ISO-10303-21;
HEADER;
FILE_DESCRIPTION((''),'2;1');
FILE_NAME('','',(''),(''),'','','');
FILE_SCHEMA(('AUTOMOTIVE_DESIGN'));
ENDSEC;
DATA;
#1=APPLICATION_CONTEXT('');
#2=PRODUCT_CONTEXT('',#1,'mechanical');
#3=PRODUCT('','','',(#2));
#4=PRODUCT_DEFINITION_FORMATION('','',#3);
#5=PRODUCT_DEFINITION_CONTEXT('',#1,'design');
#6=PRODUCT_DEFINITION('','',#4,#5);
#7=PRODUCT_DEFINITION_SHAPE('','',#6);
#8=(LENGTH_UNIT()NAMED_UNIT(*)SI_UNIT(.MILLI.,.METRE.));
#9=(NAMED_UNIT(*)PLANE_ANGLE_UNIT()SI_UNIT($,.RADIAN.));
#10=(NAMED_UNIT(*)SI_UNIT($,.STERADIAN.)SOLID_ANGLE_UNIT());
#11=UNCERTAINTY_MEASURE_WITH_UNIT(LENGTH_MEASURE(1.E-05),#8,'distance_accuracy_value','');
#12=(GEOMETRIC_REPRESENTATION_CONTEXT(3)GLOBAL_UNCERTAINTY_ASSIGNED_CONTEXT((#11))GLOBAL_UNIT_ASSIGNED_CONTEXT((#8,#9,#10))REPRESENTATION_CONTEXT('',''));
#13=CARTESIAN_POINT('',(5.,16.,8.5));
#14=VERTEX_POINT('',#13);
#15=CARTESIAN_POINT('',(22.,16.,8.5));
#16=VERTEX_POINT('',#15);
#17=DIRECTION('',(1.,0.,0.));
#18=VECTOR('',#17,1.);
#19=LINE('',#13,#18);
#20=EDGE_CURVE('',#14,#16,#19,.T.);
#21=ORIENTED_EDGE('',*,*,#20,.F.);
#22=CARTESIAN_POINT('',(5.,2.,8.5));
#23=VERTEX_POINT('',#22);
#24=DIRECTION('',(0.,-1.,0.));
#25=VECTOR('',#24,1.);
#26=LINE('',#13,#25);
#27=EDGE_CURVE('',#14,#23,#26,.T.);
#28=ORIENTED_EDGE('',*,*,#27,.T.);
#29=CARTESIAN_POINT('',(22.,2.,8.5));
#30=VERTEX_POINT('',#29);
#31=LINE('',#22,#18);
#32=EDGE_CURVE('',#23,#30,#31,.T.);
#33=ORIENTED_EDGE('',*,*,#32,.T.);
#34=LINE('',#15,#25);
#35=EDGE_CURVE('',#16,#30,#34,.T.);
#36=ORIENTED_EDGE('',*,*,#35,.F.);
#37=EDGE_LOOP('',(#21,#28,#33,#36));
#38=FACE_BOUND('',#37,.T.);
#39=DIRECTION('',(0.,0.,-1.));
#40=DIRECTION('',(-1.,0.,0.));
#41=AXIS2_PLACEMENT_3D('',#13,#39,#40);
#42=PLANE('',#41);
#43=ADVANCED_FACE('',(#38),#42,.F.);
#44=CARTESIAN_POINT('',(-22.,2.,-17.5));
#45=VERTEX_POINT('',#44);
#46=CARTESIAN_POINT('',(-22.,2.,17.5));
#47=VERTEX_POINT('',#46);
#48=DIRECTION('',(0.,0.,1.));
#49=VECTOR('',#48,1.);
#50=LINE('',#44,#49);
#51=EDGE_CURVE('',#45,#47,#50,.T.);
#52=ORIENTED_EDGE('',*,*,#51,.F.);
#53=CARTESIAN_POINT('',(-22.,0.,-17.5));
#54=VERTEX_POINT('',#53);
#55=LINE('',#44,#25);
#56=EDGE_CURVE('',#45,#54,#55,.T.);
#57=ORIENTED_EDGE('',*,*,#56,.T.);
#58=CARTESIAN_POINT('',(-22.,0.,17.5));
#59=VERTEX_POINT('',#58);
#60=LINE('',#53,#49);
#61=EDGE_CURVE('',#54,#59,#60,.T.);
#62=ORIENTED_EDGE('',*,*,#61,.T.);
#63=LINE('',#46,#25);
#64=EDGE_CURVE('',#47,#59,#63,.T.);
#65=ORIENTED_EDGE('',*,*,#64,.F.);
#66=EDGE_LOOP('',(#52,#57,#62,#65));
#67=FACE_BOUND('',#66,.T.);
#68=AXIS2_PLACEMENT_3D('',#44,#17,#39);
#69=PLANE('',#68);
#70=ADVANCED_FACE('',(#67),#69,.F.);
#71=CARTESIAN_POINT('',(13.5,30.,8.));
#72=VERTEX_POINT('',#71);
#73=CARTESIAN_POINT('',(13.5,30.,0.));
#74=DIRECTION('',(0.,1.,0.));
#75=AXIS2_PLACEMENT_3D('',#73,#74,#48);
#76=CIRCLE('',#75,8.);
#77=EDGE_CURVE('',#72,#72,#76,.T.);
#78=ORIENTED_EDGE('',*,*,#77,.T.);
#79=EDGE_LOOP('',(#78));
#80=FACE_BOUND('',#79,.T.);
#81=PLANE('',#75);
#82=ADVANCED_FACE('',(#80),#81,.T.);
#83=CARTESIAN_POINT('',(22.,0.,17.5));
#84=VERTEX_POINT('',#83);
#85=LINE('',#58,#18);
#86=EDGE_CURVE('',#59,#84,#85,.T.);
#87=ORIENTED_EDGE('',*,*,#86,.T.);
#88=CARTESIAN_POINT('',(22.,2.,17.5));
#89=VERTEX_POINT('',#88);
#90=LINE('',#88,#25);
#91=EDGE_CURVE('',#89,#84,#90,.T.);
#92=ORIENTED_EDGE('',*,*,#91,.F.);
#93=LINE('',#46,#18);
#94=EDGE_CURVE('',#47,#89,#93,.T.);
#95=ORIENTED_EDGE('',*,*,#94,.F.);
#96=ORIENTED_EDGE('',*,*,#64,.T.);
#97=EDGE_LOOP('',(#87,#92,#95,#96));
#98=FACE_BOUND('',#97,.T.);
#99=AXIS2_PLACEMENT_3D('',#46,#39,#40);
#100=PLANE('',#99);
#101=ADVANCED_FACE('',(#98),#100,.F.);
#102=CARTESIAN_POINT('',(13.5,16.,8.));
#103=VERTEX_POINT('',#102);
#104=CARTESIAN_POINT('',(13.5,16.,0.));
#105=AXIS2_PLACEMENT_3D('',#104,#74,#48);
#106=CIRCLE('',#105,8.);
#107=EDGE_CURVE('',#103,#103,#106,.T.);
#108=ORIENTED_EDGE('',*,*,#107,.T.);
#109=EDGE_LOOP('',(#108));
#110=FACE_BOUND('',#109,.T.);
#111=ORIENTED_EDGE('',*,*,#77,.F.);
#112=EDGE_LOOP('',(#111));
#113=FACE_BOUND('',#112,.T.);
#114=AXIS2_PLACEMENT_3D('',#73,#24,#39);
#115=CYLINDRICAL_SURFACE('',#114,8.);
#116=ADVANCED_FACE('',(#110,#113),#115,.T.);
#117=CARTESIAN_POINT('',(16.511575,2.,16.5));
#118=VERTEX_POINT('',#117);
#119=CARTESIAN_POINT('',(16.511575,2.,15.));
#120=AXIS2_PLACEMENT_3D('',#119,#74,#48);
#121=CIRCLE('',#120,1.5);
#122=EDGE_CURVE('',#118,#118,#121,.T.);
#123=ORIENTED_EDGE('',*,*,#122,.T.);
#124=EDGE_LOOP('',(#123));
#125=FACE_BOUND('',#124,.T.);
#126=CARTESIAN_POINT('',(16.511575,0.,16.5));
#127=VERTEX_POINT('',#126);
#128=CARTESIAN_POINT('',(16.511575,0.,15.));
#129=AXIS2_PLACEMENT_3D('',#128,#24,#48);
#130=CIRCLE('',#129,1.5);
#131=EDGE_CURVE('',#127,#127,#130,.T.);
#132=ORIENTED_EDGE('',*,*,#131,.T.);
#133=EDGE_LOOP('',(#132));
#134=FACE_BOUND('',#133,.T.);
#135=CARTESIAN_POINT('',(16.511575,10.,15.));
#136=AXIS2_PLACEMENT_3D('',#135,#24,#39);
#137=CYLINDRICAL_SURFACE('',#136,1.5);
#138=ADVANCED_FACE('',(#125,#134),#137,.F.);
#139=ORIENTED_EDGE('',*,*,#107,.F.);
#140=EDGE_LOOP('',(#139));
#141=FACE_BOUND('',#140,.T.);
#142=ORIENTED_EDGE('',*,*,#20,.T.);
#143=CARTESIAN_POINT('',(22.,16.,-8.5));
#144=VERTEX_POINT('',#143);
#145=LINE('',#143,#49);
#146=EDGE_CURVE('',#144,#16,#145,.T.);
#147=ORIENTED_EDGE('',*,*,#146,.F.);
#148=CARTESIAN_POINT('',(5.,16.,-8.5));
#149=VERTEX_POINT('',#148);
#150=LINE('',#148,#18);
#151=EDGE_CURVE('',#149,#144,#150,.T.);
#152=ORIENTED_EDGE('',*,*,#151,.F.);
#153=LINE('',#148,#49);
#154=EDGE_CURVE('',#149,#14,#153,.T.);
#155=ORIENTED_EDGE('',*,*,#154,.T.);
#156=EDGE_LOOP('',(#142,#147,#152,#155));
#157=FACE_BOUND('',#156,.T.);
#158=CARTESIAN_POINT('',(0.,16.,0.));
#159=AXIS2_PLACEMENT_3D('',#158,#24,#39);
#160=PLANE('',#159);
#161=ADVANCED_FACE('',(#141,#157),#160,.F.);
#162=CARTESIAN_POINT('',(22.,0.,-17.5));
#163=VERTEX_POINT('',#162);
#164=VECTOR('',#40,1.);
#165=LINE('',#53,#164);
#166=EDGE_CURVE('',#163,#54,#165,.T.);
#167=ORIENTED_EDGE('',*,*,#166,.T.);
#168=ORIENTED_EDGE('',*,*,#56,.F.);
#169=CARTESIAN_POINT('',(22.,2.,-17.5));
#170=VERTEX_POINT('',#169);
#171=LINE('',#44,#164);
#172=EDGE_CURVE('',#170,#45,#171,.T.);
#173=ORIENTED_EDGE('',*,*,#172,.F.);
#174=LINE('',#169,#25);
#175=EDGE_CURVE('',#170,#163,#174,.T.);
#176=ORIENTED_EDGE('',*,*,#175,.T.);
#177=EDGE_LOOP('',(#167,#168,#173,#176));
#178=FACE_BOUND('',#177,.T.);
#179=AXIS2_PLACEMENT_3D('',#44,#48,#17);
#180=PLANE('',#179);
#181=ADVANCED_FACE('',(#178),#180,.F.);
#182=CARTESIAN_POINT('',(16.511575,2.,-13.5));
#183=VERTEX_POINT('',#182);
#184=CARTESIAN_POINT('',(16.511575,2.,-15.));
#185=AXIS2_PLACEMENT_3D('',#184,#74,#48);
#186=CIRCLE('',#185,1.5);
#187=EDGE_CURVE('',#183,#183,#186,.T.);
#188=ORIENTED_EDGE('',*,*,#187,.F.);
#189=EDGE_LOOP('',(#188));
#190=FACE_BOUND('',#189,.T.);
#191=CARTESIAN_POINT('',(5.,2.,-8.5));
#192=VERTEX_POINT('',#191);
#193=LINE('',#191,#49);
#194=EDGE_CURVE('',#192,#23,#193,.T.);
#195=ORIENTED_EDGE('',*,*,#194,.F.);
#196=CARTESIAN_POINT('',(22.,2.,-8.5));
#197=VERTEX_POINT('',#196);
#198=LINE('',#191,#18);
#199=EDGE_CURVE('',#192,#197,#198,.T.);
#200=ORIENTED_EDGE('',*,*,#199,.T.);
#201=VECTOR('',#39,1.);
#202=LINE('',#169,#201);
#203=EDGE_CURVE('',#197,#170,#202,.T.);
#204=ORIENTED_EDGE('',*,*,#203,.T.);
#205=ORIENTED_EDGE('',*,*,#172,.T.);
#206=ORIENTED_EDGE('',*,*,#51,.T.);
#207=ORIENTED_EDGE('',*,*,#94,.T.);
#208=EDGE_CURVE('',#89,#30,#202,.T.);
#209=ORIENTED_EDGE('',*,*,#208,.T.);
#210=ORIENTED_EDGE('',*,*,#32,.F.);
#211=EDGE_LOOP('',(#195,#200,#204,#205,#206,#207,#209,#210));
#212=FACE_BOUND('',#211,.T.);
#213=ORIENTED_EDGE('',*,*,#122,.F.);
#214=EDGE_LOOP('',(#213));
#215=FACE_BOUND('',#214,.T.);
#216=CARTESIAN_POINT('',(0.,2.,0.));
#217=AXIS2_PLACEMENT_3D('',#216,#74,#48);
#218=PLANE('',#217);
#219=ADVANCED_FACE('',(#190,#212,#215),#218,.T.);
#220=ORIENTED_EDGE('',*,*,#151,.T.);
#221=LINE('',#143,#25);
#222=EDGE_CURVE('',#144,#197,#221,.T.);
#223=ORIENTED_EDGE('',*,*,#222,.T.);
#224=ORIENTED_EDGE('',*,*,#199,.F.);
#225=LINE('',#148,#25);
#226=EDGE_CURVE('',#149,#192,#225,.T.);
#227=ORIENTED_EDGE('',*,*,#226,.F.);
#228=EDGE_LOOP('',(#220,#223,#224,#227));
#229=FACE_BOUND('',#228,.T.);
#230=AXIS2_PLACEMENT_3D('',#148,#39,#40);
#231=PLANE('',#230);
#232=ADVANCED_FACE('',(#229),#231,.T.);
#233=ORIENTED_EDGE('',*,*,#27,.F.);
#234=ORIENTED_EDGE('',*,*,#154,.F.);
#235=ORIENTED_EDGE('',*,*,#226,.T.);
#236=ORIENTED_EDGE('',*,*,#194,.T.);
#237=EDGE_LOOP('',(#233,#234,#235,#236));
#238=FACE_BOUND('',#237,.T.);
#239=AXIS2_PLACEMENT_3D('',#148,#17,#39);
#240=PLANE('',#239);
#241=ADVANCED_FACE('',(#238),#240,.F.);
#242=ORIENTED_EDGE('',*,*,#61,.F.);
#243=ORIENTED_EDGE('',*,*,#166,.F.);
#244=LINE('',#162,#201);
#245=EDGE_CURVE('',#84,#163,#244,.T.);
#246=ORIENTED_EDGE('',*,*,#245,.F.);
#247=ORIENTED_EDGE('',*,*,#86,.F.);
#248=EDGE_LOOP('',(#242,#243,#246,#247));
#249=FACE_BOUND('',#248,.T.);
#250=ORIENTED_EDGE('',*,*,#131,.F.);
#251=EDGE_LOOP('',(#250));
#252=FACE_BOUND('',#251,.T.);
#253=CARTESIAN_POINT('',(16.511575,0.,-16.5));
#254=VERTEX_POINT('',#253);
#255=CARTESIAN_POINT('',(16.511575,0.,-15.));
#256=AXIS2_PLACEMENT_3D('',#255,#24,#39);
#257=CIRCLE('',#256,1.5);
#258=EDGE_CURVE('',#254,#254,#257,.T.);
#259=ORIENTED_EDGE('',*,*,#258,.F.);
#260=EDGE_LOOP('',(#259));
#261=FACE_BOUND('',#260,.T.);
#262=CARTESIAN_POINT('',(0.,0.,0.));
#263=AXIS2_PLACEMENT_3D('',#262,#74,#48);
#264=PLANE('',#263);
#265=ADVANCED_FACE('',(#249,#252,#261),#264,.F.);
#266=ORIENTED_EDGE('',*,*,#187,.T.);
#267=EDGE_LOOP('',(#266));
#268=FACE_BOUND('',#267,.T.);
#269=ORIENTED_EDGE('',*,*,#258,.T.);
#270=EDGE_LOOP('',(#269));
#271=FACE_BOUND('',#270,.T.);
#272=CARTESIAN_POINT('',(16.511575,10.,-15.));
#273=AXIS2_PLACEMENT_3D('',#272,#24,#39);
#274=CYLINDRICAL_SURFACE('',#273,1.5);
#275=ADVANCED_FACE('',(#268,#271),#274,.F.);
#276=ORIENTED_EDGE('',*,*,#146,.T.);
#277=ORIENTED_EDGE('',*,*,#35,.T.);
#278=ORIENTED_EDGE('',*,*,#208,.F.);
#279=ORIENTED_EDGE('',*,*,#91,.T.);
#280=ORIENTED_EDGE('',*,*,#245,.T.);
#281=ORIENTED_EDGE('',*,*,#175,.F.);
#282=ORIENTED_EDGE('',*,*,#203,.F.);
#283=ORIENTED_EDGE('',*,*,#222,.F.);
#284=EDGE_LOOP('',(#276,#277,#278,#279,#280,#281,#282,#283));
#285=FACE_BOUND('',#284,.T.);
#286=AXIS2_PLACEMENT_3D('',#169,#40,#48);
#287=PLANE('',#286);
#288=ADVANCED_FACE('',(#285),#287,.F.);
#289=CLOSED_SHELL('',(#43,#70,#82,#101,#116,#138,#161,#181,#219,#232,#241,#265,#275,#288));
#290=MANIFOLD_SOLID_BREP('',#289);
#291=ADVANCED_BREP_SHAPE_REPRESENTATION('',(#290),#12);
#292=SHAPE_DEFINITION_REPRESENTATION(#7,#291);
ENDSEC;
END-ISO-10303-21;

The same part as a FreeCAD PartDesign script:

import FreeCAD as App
import Part
import Sketcher
Q = App.Units.Quantity


def add_polygon(sketch, points):
    """Adds a closed chain of lines whose ends are joined by coincident constraints."""
    first, n = sketch.GeometryCount, len(points)
    for a, b in zip(points, points[1:] + points[:1]):
        sketch.addGeometry(Part.LineSegment(App.Vector(*a, 0), App.Vector(*b, 0)), False)
    for i in range(n):
        sketch.addConstraint(Sketcher.Constraint("Coincident", first + i, 2, first + (i + 1) % n, 1))

doc = App.newDocument("Part")
body = doc.addObject("PartDesign::Body", "Body")

# Sketch on XZ plane
sketch1 = body.newObject("Sketcher::SketchObject", "Sketch")
sketch1.AttachmentSupport = (doc.getObject("XZ_Plane"), [""])
sketch1.MapMode = "FlatFace"
add_polygon(sketch1, [(-22, -18), (-22, 18), (22, 18), (22, -18)])  # lines 0-3
sketch1.addConstraint([
    Sketcher.Constraint("Vertical", 0),
    Sketcher.Constraint("Horizontal", 1),
    Sketcher.Constraint("Vertical", 2),
    Sketcher.Constraint("Horizontal", 3),
    Sketcher.Constraint("Symmetric", 0, 2, 2, 2, -1, 1),
    Sketcher.Constraint("DistanceX", 1, 1, 1, 2, Q("44 mm")),
    Sketcher.Constraint("DistanceY", 0, 1, 0, 2, Q("35 mm")),
])
pad1 = body.newObject("PartDesign::Pad", "Pad")
pad1.Profile = sketch1
pad1.Length = 2
pad1.Reversed = True

# Sketch on XZ plane
sketch2 = body.newObject("Sketcher::SketchObject", "Sketch001")
sketch2.AttachmentSupport = (doc.getObject("XZ_Plane"), [""])
sketch2.MapMode = "FlatFace"
sketch2.AttachmentOffset = App.Placement(App.Vector(0, 0, -2), App.Rotation())
add_polygon(sketch2, [(5, -8), (5, 8), (22, 8), (22, -8)])  # lines 0-3
sketch2.addConstraint([
    Sketcher.Constraint("Vertical", 0),
    Sketcher.Constraint("Horizontal", 1),
    Sketcher.Constraint("Vertical", 2),
    Sketcher.Constraint("Horizontal", 3),
    Sketcher.Constraint("Equal", 3, 0),
    Sketcher.Constraint("DistanceX", 1, 1, 1, 2, Q("17 mm")),
    Sketcher.Constraint("DistanceX", -1, 1, 0, 2, Q("5 mm")),
    Sketcher.Constraint("DistanceY", -1, 1, 0, 2, Q("8.5 mm")),
])
pad2 = body.newObject("PartDesign::Pad", "Pad001")
pad2.Profile = sketch2
pad2.Length = 14
pad2.Reversed = True

# Sketch on XZ plane
sketch3 = body.newObject("Sketcher::SketchObject", "Sketch002")
sketch3.AttachmentSupport = (doc.getObject("XZ_Plane"), [""])
sketch3.MapMode = "FlatFace"
sketch3.AttachmentOffset = App.Placement(App.Vector(0, 0, -16), App.Rotation())
sketch3.addGeometry(Part.Circle(App.Vector(14, 0, 0), App.Vector(0, 0, 1), 8), False)
sketch3.addConstraint([
    Sketcher.Constraint("PointOnObject", 0, 3, -1),
    Sketcher.Constraint("Diameter", 0, Q("16 mm")),
    Sketcher.Constraint("DistanceX", -1, 1, 0, 3, Q("13.5 mm")),
])
pad3 = body.newObject("PartDesign::Pad", "Pad002")
pad3.Profile = sketch3
pad3.Length = 14
pad3.Reversed = True

# Sketch on XZ plane
sketch4 = body.newObject("Sketcher::SketchObject", "Sketch003")
sketch4.AttachmentSupport = (doc.getObject("XZ_Plane"), [""])
sketch4.MapMode = "FlatFace"
sketch4.addGeometry([
    Part.Circle(App.Vector(16.5, -15, 0), App.Vector(0, 0, 1), 1.5),
    Part.Circle(App.Vector(16.5, 15, 0), App.Vector(0, 0, 1), 1.5),
], False)
sketch4.addConstraint([
    Sketcher.Constraint("Equal", 0, 1),
    Sketcher.Constraint("Symmetric", 0, 3, 1, 3, -1),
    Sketcher.Constraint("Diameter", 0, Q("3 mm")),
    Sketcher.Constraint("DistanceY", 0, 3, -1, 1, Q("15 mm")),
    Sketcher.Constraint("DistanceX", -1, 1, 0, 3, Q("16.511575 mm")),
])
pocket1 = body.newObject("PartDesign::Pocket", "Pocket")
pocket1.Profile = sketch4
pocket1.Length = 10

doc.recompute()
